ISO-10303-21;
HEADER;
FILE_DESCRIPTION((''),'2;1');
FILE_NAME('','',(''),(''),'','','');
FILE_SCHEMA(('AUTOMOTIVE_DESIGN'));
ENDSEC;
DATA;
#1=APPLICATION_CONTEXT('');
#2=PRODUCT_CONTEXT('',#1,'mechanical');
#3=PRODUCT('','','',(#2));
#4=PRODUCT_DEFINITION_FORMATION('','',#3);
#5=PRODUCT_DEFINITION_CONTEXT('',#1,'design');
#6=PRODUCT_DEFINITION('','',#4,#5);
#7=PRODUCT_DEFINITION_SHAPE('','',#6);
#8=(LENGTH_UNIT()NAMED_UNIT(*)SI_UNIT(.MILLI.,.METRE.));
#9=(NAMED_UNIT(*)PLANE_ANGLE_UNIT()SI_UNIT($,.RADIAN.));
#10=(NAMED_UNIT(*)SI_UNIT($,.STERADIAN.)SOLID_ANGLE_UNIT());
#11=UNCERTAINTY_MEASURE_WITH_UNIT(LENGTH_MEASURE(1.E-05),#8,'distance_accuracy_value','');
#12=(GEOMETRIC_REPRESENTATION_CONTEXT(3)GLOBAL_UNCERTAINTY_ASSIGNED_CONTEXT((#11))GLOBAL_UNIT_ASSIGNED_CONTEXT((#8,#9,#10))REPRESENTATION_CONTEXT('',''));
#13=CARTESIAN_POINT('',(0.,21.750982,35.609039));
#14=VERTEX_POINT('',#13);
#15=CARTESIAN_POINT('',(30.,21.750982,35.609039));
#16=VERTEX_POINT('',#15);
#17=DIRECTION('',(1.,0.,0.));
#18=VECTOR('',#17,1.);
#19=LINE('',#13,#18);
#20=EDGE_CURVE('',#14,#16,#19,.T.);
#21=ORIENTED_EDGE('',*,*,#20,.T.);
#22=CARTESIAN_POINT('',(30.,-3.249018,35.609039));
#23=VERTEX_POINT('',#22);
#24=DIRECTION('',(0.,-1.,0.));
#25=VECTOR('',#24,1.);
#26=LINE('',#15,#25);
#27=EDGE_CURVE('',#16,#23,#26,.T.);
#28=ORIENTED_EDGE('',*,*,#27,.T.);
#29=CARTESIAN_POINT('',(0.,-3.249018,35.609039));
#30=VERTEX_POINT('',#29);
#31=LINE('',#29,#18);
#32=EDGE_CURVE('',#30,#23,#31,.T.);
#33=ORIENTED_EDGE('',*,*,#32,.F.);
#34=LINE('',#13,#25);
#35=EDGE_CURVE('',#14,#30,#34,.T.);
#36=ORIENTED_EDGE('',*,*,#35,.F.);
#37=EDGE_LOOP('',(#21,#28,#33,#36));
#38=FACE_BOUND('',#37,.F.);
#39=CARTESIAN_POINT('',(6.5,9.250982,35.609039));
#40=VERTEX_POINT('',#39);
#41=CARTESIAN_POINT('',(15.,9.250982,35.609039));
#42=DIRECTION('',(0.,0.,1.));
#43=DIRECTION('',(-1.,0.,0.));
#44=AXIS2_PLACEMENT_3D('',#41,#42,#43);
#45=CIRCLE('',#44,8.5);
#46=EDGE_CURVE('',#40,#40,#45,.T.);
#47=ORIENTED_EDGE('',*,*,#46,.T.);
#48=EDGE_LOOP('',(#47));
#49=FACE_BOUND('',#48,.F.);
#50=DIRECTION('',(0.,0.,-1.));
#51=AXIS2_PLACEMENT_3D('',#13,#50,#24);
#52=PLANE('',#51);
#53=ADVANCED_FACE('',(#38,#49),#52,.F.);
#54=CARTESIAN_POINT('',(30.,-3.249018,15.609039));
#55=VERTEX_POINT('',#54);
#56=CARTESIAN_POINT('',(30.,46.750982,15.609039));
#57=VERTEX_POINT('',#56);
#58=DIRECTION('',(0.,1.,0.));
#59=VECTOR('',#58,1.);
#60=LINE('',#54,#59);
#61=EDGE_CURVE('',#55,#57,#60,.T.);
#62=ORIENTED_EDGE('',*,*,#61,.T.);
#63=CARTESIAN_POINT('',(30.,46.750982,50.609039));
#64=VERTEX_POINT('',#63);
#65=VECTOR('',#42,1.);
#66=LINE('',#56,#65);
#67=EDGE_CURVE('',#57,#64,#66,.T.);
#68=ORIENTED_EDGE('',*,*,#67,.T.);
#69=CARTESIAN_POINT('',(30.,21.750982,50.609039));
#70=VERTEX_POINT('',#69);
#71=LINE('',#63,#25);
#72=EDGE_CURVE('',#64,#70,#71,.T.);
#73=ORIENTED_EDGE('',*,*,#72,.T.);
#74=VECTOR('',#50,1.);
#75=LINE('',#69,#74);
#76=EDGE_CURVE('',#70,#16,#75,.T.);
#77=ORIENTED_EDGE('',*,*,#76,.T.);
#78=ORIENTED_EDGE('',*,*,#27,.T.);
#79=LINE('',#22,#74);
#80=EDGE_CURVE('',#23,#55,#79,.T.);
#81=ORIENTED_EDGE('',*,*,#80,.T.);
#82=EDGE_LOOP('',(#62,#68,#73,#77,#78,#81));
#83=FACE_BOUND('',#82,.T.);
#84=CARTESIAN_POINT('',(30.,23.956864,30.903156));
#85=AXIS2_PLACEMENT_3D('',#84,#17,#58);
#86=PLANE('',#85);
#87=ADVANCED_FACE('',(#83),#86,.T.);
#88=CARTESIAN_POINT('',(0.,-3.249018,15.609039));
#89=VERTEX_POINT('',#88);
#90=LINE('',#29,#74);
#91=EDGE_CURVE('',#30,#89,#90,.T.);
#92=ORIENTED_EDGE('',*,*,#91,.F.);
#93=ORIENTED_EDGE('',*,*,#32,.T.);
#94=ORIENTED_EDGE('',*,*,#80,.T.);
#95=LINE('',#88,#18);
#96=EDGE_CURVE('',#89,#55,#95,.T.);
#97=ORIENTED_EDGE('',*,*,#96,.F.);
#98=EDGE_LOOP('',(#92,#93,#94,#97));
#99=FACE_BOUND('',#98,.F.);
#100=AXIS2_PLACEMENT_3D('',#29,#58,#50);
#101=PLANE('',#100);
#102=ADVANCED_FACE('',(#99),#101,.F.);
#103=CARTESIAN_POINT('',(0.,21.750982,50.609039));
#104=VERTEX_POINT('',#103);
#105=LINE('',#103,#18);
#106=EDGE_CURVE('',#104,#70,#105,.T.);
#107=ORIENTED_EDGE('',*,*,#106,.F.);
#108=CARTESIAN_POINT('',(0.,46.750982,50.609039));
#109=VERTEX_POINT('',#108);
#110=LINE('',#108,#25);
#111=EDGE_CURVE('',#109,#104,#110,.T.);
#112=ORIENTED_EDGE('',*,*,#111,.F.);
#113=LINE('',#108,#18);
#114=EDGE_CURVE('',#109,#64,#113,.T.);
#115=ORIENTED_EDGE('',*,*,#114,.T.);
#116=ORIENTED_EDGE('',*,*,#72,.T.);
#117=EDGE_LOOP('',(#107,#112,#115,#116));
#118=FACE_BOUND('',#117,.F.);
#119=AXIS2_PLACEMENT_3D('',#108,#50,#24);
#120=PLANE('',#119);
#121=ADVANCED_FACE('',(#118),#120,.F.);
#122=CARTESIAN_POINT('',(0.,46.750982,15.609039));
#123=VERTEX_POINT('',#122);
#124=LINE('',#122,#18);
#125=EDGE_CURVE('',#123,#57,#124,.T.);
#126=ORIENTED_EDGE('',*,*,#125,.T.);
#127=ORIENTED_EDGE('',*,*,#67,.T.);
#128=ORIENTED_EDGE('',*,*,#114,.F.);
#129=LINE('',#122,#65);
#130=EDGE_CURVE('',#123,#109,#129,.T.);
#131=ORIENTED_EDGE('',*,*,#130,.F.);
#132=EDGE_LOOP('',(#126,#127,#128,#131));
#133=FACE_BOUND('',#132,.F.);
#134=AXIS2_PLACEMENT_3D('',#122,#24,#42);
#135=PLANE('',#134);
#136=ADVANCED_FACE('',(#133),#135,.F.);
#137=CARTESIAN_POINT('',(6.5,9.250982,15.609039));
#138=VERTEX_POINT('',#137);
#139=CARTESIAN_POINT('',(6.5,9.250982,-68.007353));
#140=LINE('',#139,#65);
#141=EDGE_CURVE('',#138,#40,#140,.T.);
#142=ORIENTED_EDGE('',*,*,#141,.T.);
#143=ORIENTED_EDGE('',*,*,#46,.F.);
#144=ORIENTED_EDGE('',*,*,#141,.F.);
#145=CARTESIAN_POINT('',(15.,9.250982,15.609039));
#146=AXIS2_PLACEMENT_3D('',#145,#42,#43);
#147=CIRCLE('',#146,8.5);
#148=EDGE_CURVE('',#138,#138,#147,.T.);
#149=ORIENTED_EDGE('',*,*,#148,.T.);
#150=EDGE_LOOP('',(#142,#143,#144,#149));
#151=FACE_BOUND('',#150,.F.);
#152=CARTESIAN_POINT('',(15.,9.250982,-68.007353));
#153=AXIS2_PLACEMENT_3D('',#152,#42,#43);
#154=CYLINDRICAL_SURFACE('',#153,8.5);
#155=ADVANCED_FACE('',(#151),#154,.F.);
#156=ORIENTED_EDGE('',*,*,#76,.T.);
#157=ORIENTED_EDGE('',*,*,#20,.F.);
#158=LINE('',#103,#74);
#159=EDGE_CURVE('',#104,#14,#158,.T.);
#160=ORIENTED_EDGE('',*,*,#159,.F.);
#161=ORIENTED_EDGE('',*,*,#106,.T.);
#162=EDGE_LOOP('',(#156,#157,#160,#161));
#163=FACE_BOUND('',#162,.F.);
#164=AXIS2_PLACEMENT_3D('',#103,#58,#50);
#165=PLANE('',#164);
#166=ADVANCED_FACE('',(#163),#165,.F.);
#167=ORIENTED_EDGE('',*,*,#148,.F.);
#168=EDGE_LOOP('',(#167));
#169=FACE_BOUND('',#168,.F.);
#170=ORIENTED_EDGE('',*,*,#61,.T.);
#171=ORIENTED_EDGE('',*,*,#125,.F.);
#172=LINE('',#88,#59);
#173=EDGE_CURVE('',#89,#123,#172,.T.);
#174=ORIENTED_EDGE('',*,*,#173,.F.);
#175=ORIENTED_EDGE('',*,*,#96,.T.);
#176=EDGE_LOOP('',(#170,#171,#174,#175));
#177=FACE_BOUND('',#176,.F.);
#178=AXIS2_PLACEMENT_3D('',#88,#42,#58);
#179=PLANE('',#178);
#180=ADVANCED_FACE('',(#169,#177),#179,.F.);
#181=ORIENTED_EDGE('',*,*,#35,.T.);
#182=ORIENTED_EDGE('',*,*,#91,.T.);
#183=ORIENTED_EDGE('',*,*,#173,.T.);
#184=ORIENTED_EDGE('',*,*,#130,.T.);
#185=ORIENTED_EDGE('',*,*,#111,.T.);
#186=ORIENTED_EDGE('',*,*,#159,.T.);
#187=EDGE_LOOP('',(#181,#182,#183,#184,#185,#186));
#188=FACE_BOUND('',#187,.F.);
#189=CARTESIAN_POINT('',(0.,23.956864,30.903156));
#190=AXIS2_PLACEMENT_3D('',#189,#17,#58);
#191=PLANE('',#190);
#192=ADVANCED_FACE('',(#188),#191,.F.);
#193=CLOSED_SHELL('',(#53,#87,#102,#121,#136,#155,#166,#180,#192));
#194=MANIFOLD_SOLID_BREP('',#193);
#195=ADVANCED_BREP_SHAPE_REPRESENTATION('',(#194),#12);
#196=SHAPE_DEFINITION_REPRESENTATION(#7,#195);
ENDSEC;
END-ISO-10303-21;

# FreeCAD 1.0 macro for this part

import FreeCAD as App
import Part
import Sketcher

V = App.Vector
Q = App.Units.Quantity


def add_polygon(sketch, points):
    """Adds a closed chain of lines whose ends are joined by coincident constraints."""
    first, n = sketch.GeometryCount, len(points)
    for a, b in zip(points, points[1:] + points[:1]):
        sketch.addGeometry(Part.LineSegment(App.Vector(*a, 0), App.Vector(*b, 0)), False)
    for i in range(n):
        sketch.addConstraint(Sketcher.Constraint("Coincident", first + i, 2, first + (i + 1) % n, 1))

doc = App.newDocument("Part")
body = doc.addObject("PartDesign::Body", "Body")

# Sketch on YZ plane
sketch1 = body.newObject("Sketcher::SketchObject", "Sketch")
sketch1.AttachmentSupport = (doc.getObject("YZ_Plane"), [""])
sketch1.MapMode = "FlatFace"
add_polygon(sketch1, [(47, 16), (47, 51), (22, 51), (22, 36), (-3, 36), (-3, 16)])  # lines 0-5
sketch1.addConstraint(Sketcher.Constraint("Vertical", 0))
sketch1.addConstraint(Sketcher.Constraint("Horizontal", 1))
sketch1.addConstraint(Sketcher.Constraint("Vertical", 2))
sketch1.addConstraint(Sketcher.Constraint("Horizontal", 3))
sketch1.addConstraint(Sketcher.Constraint("Vertical", 4))
sketch1.addConstraint(Sketcher.Constraint("Horizontal", 5))
sketch1.addConstraint(Sketcher.Constraint("Equal", 1, 3))
sketch1.addConstraint(Sketcher.Constraint("DistanceX", 1, 2, 1, 1, Q("25 mm")))
sketch1.addConstraint(Sketcher.Constraint("DistanceY", 0, 1, 0, 2, Q("35 mm")))
sketch1.addConstraint(Sketcher.Constraint("DistanceY", 2, 2, 2, 1, Q("15 mm")))
sketch1.addConstraint(Sketcher.Constraint("DistanceX", -1, 1, 0, 2, Q("46.750982 mm")))
sketch1.addConstraint(Sketcher.Constraint("DistanceY", -1, 1, 0, 2, Q("50.609039 mm")))
pad1 = body.newObject("PartDesign::Pad", "Pad")
pad1.Profile = sketch1
pad1.Length = 30

# Sketch on XY plane
sketch2 = body.newObject("Sketcher::SketchObject", "Sketch001")
sketch2.AttachmentSupport = (doc.getObject("XY_Plane"), [""])
sketch2.MapMode = "FlatFace"
sketch2.addGeometry(Part.Circle(V(15, 9, 0), V(0, 0, 1), 8), False)
sketch2.addConstraint(Sketcher.Constraint("Diameter", 0, Q("17 mm")))
sketch2.addConstraint(Sketcher.Constraint("DistanceX", -1, 1, 0, 3, Q("15 mm")))
sketch2.addConstraint(Sketcher.Constraint("DistanceY", -1, 1, 0, 3, Q("9.250982 mm")))
doc.recompute()
hole = body.newObject("PartDesign::Hole", "Hole")
hole.Profile = sketch2
hole.ThreadType = "None"
hole.Diameter = 17
hole.DepthType = "ThroughAll"
hole.Reversed = True

doc.recompute()
